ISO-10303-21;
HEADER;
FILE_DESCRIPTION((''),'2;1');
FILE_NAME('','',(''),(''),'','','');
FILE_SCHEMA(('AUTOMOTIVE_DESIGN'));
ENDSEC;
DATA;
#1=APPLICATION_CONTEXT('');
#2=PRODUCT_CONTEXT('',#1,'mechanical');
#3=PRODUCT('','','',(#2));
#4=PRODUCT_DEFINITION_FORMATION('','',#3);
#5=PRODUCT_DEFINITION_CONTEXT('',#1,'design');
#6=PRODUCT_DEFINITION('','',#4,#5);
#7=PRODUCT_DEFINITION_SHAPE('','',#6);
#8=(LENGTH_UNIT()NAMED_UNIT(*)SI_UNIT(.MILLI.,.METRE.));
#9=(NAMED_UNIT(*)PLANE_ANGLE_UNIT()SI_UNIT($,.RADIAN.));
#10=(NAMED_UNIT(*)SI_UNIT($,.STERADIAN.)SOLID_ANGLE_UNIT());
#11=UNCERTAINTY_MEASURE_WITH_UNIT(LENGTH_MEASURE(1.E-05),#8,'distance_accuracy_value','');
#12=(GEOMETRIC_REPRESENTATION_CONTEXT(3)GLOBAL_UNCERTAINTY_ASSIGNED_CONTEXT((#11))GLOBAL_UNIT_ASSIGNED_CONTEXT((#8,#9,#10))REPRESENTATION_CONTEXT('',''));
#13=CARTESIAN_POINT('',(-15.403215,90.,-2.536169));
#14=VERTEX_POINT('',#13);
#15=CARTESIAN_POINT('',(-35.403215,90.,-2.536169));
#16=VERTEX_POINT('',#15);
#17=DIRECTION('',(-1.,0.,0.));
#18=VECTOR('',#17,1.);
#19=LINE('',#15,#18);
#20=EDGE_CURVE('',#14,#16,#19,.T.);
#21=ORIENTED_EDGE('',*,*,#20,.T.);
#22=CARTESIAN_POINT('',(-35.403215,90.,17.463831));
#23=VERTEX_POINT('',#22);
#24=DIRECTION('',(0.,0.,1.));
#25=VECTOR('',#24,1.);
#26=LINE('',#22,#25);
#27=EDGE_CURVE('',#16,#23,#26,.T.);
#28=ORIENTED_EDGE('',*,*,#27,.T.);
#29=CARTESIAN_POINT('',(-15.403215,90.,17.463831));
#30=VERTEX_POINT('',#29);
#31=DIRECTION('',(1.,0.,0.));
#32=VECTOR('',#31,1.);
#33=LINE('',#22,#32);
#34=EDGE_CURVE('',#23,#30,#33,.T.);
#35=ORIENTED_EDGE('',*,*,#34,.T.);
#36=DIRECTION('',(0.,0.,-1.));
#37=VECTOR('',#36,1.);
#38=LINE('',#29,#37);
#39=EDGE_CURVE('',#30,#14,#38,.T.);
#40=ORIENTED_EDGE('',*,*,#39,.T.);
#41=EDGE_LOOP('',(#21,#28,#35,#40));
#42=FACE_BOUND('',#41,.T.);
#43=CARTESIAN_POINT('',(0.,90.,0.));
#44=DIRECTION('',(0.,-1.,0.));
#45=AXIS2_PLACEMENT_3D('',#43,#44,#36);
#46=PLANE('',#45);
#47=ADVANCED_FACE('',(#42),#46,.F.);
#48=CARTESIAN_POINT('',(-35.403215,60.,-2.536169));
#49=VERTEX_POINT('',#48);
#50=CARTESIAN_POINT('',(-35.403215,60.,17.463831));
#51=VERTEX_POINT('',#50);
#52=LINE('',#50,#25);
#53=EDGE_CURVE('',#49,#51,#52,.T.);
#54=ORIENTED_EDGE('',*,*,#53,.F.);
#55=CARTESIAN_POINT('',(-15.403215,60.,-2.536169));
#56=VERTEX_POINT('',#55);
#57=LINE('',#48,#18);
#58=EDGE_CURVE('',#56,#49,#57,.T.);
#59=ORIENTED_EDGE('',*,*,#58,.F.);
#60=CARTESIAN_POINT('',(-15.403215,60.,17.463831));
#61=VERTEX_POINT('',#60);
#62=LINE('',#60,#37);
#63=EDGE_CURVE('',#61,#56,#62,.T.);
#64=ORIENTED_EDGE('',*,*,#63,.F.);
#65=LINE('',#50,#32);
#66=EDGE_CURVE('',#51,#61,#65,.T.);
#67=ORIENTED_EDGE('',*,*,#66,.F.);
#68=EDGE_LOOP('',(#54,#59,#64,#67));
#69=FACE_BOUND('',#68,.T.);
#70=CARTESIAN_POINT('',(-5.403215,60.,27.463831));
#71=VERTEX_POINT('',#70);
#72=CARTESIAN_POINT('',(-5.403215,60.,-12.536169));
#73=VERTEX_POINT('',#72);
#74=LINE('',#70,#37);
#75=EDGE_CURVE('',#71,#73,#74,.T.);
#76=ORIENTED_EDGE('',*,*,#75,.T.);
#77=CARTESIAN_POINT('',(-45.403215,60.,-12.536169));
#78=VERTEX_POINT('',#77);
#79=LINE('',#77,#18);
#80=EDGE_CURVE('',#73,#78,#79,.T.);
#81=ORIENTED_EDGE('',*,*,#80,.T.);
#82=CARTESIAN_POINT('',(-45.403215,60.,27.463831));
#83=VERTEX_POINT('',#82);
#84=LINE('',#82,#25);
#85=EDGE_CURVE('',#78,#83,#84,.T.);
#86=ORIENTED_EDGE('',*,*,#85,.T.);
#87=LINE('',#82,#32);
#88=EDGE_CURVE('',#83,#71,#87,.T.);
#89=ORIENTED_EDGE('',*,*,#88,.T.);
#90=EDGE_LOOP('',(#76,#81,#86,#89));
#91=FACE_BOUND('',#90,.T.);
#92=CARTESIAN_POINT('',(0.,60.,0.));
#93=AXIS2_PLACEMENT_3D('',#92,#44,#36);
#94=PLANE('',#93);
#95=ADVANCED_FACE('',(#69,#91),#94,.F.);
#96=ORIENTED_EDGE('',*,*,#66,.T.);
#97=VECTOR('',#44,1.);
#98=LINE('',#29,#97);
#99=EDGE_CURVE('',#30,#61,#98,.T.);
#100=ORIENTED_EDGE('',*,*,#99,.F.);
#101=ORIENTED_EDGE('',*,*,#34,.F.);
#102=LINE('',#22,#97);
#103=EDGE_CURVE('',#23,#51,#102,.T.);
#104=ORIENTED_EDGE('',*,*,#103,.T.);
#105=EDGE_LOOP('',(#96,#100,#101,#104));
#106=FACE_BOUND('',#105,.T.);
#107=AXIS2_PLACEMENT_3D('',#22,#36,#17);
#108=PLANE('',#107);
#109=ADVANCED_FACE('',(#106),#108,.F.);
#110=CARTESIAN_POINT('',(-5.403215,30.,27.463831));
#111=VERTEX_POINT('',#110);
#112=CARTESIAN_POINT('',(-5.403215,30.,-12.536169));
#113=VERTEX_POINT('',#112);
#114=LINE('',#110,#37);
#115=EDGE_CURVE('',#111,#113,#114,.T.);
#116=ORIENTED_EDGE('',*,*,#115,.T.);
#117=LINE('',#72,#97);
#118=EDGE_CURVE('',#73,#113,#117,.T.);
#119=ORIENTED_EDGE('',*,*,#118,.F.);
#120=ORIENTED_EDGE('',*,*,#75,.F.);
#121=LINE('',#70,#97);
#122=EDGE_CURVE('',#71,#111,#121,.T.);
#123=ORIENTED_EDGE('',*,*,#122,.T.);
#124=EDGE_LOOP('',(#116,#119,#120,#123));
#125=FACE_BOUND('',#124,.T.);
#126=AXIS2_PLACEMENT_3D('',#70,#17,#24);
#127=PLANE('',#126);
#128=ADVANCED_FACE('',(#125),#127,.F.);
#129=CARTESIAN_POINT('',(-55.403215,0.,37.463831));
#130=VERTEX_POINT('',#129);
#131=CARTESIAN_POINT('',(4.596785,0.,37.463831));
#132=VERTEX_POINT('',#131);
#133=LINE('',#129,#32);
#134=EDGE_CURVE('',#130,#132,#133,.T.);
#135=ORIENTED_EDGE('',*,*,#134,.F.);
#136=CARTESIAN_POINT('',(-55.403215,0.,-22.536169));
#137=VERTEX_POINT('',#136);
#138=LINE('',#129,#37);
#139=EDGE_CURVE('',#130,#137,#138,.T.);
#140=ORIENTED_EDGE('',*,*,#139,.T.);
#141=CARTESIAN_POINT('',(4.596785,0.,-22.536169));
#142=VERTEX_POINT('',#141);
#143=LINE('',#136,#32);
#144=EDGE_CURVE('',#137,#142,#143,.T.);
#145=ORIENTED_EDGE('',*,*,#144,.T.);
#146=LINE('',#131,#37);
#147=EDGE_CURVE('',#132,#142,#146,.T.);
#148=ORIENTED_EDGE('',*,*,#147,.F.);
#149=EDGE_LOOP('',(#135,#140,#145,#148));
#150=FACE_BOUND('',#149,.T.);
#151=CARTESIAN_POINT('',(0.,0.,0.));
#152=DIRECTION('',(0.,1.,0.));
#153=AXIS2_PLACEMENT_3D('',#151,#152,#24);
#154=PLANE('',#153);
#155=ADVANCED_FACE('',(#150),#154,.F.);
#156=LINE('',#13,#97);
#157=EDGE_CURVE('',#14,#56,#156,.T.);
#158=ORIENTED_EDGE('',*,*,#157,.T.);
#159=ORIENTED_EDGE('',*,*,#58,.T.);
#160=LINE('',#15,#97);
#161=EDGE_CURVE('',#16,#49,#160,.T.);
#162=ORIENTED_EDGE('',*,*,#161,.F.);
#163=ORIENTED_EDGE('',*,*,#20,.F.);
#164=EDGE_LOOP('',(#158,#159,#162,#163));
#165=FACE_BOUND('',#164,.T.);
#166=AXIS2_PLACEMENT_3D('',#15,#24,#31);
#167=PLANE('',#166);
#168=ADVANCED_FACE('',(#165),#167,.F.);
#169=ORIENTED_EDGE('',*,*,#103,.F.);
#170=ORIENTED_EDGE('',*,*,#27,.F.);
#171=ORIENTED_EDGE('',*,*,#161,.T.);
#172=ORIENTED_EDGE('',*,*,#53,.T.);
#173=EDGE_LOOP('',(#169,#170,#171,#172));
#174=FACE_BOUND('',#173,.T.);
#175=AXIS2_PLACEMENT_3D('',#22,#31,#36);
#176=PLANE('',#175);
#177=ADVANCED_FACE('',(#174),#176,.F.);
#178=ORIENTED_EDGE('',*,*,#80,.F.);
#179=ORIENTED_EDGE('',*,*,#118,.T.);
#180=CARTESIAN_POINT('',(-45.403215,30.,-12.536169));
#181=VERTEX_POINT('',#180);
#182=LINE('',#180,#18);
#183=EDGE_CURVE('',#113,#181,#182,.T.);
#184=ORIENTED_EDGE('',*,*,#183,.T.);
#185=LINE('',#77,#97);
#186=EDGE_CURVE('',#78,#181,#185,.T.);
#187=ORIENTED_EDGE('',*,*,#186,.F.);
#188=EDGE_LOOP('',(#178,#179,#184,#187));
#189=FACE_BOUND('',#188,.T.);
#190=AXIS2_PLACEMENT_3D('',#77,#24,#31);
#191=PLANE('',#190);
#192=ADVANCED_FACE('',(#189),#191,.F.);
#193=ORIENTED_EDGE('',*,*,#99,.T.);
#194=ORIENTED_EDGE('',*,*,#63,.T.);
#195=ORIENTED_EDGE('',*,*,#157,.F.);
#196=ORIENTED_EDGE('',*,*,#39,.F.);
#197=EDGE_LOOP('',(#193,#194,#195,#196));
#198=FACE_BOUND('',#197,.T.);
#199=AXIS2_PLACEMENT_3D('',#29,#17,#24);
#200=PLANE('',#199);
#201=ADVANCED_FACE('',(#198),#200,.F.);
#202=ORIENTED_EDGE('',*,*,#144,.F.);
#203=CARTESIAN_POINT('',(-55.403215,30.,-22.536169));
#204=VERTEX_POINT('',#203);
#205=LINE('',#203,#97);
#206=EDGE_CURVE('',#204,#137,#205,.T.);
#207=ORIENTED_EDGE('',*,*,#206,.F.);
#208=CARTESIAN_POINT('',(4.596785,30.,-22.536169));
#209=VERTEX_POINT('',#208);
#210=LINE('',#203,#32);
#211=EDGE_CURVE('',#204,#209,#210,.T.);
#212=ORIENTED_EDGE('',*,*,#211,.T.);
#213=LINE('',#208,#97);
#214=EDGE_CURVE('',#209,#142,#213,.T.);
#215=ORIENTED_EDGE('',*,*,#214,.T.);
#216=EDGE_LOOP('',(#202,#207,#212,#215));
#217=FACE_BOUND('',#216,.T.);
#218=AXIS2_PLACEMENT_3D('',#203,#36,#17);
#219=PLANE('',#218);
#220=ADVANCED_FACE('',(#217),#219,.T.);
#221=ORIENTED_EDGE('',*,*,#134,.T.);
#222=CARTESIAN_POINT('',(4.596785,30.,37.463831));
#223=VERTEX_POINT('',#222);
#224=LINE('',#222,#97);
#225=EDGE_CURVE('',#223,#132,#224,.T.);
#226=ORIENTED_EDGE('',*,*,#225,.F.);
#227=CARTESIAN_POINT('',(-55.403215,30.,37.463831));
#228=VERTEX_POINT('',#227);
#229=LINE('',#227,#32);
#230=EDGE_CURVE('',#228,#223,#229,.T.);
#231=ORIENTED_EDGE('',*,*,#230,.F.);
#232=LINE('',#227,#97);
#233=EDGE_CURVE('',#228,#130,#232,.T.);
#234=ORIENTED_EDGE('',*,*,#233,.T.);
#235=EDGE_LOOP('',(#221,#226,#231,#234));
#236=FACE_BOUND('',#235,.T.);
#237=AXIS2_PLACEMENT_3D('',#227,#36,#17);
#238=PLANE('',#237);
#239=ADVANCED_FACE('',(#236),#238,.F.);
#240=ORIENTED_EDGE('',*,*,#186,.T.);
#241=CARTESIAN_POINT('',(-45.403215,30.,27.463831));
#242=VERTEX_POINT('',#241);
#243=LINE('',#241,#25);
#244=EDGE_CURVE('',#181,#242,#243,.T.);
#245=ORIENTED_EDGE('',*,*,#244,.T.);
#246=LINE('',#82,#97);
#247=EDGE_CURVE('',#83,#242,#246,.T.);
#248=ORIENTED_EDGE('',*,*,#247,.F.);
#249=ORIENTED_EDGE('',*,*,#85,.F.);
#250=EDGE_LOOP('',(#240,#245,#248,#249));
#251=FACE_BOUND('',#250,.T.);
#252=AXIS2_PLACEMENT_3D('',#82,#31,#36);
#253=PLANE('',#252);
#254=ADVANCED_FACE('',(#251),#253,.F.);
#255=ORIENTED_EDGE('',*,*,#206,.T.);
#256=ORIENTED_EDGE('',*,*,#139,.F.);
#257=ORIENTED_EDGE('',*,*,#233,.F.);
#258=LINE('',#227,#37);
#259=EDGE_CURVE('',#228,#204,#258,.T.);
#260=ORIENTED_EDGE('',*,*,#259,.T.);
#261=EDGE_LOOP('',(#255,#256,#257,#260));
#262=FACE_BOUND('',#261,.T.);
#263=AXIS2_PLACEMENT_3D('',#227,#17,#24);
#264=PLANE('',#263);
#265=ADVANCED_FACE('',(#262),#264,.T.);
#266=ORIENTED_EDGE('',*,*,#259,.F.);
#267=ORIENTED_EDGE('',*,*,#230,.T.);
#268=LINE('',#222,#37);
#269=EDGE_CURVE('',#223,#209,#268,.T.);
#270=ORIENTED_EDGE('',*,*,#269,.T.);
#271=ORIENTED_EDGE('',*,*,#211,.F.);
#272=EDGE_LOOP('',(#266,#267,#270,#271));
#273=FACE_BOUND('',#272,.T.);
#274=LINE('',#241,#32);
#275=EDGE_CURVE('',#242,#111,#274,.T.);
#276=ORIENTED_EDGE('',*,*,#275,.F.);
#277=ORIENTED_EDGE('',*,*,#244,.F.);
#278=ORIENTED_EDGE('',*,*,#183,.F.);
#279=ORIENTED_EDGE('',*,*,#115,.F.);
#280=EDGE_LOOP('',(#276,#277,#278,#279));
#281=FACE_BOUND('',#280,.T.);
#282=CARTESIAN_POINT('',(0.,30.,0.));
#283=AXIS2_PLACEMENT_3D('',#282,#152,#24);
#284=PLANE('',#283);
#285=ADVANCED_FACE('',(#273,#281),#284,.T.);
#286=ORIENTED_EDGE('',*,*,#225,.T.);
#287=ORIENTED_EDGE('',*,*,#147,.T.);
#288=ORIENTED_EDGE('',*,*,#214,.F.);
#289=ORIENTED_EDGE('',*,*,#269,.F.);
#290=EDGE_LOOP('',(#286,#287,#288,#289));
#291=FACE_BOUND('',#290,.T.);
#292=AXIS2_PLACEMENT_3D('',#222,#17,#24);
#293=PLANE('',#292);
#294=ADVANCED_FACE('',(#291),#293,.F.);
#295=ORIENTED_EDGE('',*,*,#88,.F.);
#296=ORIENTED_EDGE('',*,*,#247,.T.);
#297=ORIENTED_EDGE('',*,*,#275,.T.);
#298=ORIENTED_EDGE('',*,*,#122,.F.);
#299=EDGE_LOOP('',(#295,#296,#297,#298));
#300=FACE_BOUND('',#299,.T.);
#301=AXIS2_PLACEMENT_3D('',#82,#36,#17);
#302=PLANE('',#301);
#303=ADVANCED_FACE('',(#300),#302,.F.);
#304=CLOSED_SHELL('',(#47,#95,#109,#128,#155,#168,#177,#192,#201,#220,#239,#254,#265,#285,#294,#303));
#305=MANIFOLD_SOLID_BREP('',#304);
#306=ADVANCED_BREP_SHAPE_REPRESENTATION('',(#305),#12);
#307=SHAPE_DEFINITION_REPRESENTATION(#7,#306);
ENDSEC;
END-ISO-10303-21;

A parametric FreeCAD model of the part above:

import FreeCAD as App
import Part
import Sketcher

V = App.Vector

doc = App.newDocument("Part")
params = doc.addObject("Spreadsheet::Sheet", "Params")
for row, (alias, value) in enumerate([
    ("sketch1_width", "60 mm"),
    ("pad1_length", "30 mm"),
    ("sketch2_width", "40 mm"),
    ("pad2_length", "30 mm"),
    ("sketch3_width", "20 mm"),
    ("pad3_length", "30 mm"),
], start=1):
    params.set(f"A{row}", alias)
    params.set(f"B{row}", "=" + value)
    params.setAlias(f"B{row}", alias)

body = doc.addObject("PartDesign::Body", "Body")

# Sketch on XZ plane
sketch1 = body.newObject("Sketcher::SketchObject", "Sketch")
sketch1.AttachmentSupport = (doc.getObject("XZ_Plane"), [""])
sketch1.MapMode = "FlatFace"
sketch1.addGeometry([
    Part.LineSegment(V(-55, -23, 0), V(-55, 37, 0)),
    Part.LineSegment(V(-55, 37, 0), V(5, 37, 0)),
    Part.LineSegment(V(5, 37, 0), V(5, -23, 0)),
    Part.LineSegment(V(5, -23, 0), V(-55, -23, 0)),
], False)
sketch1.addConstraint([
    Sketcher.Constraint("Coincident", 0, 2, 1, 1),
    Sketcher.Constraint("Coincident", 1, 2, 2, 1),
    Sketcher.Constraint("Coincident", 2, 2, 3, 1),
    Sketcher.Constraint("Coincident", 3, 2, 0, 1),
    Sketcher.Constraint("Vertical", 0),
    Sketcher.Constraint("Horizontal", 1),
    Sketcher.Constraint("Vertical", 2),
    Sketcher.Constraint("Horizontal", 3),
    Sketcher.Constraint("Equal", 3, 0),
    Sketcher.Constraint("DistanceX", 1, 1, 1, 2, 60.0),
    Sketcher.Constraint("DistanceY", -1, 1, 0, 2, 37.463831),
    Sketcher.Constraint("DistanceX", 0, 2, -1, 1, 55.403215),
])
sketch1.setExpression("Constraints[9]", "Params.sketch1_width")
pad1 = body.newObject("PartDesign::Pad", "Pad")
pad1.Profile = sketch1
pad1.setExpression("Length", "Params.pad1_length")
pad1.Reversed = True

# Sketch on XZ plane
sketch2 = body.newObject("Sketcher::SketchObject", "Sketch001")
sketch2.AttachmentSupport = (doc.getObject("XZ_Plane"), [""])
sketch2.MapMode = "FlatFace"
sketch2.AttachmentOffset = App.Placement(V(0, 0, -30), App.Rotation())
sketch2.addGeometry([
    Part.LineSegment(V(-45, -13, 0), V(-45, 27, 0)),
    Part.LineSegment(V(-45, 27, 0), V(-5, 27, 0)),
    Part.LineSegment(V(-5, 27, 0), V(-5, -13, 0)),
    Part.LineSegment(V(-5, -13, 0), V(-45, -13, 0)),
], False)
sketch2.addConstraint([
    Sketcher.Constraint("Coincident", 0, 2, 1, 1),
    Sketcher.Constraint("Coincident", 1, 2, 2, 1),
    Sketcher.Constraint("Coincident", 2, 2, 3, 1),
    Sketcher.Constraint("Coincident", 3, 2, 0, 1),
    Sketcher.Constraint("Vertical", 0),
    Sketcher.Constraint("Horizontal", 1),
    Sketcher.Constraint("Vertical", 2),
    Sketcher.Constraint("Horizontal", 3),
    Sketcher.Constraint("Equal", 3, 0),
    Sketcher.Constraint("DistanceX", 1, 1, 1, 2, 40.0),
    Sketcher.Constraint("DistanceY", -1, 1, 0, 2, 27.463831),
    Sketcher.Constraint("DistanceX", 0, 2, -1, 1, 45.403215),
])
sketch2.setExpression("Constraints[9]", "Params.sketch2_width")
pad2 = body.newObject("PartDesign::Pad", "Pad001")
pad2.Profile = sketch2
pad2.setExpression("Length", "Params.pad2_length")
pad2.Reversed = True

# Sketch on XZ plane
sketch3 = body.newObject("Sketcher::SketchObject", "Sketch002")
sketch3.AttachmentSupport = (doc.getObject("XZ_Plane"), [""])
sketch3.MapMode = "FlatFace"
sketch3.AttachmentOffset = App.Placement(V(0, 0, -60), App.Rotation())
sketch3.addGeometry([
    Part.LineSegment(V(-35, -3, 0), V(-35, 17, 0)),
    Part.LineSegment(V(-35, 17, 0), V(-15, 17, 0)),
    Part.LineSegment(V(-15, 17, 0), V(-15, -3, 0)),
    Part.LineSegment(V(-15, -3, 0), V(-35, -3, 0)),
], False)
sketch3.addConstraint([
    Sketcher.Constraint("Coincident", 0, 2, 1, 1),
    Sketcher.Constraint("Coincident", 1, 2, 2, 1),
    Sketcher.Constraint("Coincident", 2, 2, 3, 1),
    Sketcher.Constraint("Coincident", 3, 2, 0, 1),
    Sketcher.Constraint("Vertical", 0),
    Sketcher.Constraint("Horizontal", 1),
    Sketcher.Constraint("Vertical", 2),
    Sketcher.Constraint("Horizontal", 3),
    Sketcher.Constraint("Equal", 3, 0),
    Sketcher.Constraint("DistanceX", 1, 1, 1, 2, 20.0),
    Sketcher.Constraint("DistanceY", -1, 1, 0, 2, 17.463831),
    Sketcher.Constraint("DistanceX", 0, 2, -1, 1, 35.403215),
])
sketch3.setExpression("Constraints[9]", "Params.sketch3_width")
pad3 = body.newObject("PartDesign::Pad", "Pad002")
pad3.Profile = sketch3
pad3.setExpression("Length", "Params.pad3_length")
pad3.Reversed = True

doc.recompute()
